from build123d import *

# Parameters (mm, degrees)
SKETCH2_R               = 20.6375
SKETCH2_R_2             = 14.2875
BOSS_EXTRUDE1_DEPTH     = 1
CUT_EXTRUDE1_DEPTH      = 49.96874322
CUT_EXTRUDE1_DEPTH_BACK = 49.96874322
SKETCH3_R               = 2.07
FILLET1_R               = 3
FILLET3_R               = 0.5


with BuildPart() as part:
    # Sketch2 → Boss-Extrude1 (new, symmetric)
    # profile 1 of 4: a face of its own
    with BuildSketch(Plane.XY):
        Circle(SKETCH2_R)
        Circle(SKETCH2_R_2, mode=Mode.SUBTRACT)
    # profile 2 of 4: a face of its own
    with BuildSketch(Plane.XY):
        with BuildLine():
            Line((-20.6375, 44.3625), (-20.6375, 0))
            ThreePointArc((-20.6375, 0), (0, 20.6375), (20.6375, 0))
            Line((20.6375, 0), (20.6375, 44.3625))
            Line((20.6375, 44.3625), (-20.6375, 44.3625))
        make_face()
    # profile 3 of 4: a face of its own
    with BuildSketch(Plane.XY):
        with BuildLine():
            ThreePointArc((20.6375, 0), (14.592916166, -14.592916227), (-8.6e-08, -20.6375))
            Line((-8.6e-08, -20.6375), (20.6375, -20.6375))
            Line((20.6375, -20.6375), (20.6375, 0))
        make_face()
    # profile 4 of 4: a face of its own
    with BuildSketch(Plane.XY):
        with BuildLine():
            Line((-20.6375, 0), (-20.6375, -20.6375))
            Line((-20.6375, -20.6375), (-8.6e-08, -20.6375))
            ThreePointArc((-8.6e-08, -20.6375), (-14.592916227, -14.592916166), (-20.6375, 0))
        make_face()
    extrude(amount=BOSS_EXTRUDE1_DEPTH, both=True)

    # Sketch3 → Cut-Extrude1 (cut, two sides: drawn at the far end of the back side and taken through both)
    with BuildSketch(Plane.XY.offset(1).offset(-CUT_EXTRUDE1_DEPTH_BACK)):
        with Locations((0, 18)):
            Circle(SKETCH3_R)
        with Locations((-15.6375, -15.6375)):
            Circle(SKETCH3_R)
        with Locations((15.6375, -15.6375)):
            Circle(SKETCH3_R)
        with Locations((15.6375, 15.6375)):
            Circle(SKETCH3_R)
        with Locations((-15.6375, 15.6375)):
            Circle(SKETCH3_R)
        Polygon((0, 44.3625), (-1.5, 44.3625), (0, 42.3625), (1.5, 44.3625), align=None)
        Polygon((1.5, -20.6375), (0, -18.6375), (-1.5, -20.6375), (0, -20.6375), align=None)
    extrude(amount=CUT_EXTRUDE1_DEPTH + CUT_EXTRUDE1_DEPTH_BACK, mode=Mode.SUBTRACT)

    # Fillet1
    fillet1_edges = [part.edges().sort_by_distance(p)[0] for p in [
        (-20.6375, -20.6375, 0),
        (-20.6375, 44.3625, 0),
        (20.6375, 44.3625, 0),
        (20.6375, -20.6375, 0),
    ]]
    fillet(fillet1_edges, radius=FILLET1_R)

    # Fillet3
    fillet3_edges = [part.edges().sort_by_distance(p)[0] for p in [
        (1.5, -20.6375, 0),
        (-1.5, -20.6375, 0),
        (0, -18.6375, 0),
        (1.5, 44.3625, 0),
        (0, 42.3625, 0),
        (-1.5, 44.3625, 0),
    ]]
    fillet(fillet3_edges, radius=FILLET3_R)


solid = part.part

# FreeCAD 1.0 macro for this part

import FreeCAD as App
import Part
import Sketcher
from FreeCAD import Vector
Q = App.Units.Quantity


def edges_at(feature, points):
    """Names of the edges that pass closest to the given points."""
    edges = feature.Shape.Edges
    near = lambda p: min(range(len(edges)), key=lambda i: edges[i].distToShape(Part.Vertex(*p))[0])
    return sorted({f"Edge{near(p) + 1}" for p in points})


def add_polygon(sketch, points):
    """Adds a closed chain of lines whose ends are joined by coincident constraints."""
    first, n = sketch.GeometryCount, len(points)
    for a, b in zip(points, points[1:] + points[:1]):
        sketch.addGeometry(Part.LineSegment(App.Vector(*a, 0), App.Vector(*b, 0)), False)
    for i in range(n):
        sketch.addConstraint(Sketcher.Constraint("Coincident", first + i, 2, first + (i + 1) % n, 1))

doc = App.newDocument("Part")
body = doc.addObject("PartDesign::Body", "Body")

sketch1 = body.newObject("Sketcher::SketchObject", "Sketch")
sketch1.AttachmentSupport = (doc.getObject("XY_Plane"), [""])
sketch1.MapMode = "FlatFace"
add_polygon(sketch1, [(-21, 44), (-21, -21), (21, -21), (21, 44)])
sketch1.addGeometry(Part.Circle(Vector(0, 0, 0), Vector(0, 0, 1), 14), False)
sketch1.addConstraint([
    Sketcher.Constraint("Vertical", 0),
    Sketcher.Constraint("Horizontal", 1),
    Sketcher.Constraint("Vertical", 2),
    Sketcher.Constraint("Horizontal", 3),
    Sketcher.Constraint("Coincident", 4, 3, -1, 1),
    Sketcher.Constraint("DistanceY", 0, 2, 0, 1, Q("65 mm")),
    Sketcher.Constraint("Diameter", 4, Q("28.575 mm")),
    Sketcher.Constraint("DistanceX", 1, 1, 1, 2, Q("41.275 mm")),
    Sketcher.Constraint("DistanceX", 0, 2, -1, 1, Q("20.6375 mm")),
    Sketcher.Constraint("DistanceY", 0, 2, -1, 1, Q("20.6375 mm")),
])
pad1 = body.newObject("PartDesign::Pad", "Pad")
pad1.Profile = sketch1
pad1.Length = 2
pad1.Midplane = True

sketch2 = body.newObject("Sketcher::SketchObject", "Sketch001")
sketch2.AttachmentSupport = (doc.getObject("XY_Plane"), [""])
sketch2.MapMode = "FlatFace"
sketch2.AttachmentOffset = App.Placement(Vector(0, 0, 1), App.Rotation())
sketch2.addGeometry(Part.Circle(Vector(0, 18, 0), Vector(0, 0, 1), 2.1), False)
sketch2.addGeometry(Part.Circle(Vector(-15.6, -15.6, 0), Vector(0, 0, 1), 2.1), False)
sketch2.addGeometry(Part.Circle(Vector(15.6, -15.6, 0), Vector(0, 0, 1), 2.1), False)
sketch2.addGeometry(Part.Circle(Vector(15.6, 15.6, 0), Vector(0, 0, 1), 2.1), False)
sketch2.addGeometry(Part.Circle(Vector(-15.6, 15.6, 0), Vector(0, 0, 1), 2.1), False)
add_polygon(sketch2, [(-1.5, 44.4), (0, 42.4), (1.5, 44.4)])
add_polygon(sketch2, [(1.5, -20.6), (0, -18.6), (-1.5, -20.6)])
sketch2.addConstraint([
    Sketcher.Constraint("Horizontal", 7),
    Sketcher.Constraint("Horizontal", 10),
    Sketcher.Constraint("Equal", 0, 1),
    Sketcher.Constraint("Equal", 1, 2),
    Sketcher.Constraint("Equal", 2, 3),
    Sketcher.Constraint("Equal", 3, 4),
    Sketcher.Constraint("Symmetric", 1, 3, 3, 3, -1, 1),
    Sketcher.Constraint("Symmetric", 2, 3, 4, 3, -1, 1),
    Sketcher.Constraint("Symmetric", 1, 3, 2, 3, -2),
    Sketcher.Constraint("PointOnObject", 0, 3, -2),
    Sketcher.Constraint("PointOnObject", 5, 2, -2),
    Sketcher.Constraint("PointOnObject", 8, 2, -2),
    Sketcher.Constraint("Parallel", 5, 8),
    Sketcher.Constraint("Parallel", 6, 9),
    Sketcher.Constraint("Vertical", 7, 2, 9, 2),
    Sketcher.Constraint("Vertical", 6, 2, 10, 2),
    Sketcher.Constraint("Diameter", 0, Q("4.14 mm")),
    Sketcher.Constraint("DistanceX", 7, 2, 7, 1, Q("3 mm")),
    Sketcher.Constraint("DistanceY", -1, 1, 0, 3, Q("18 mm")),
    Sketcher.Constraint("DistanceY", 1, 3, 5, 2, Q("58 mm")),
    Sketcher.Constraint("DistanceY", 5, 2, 6, 2, Q("2 mm")),
    Sketcher.Constraint("DistanceY", 8, 2, 1, 3, Q("3 mm")),
    Sketcher.Constraint("DistanceX", 1, 3, 2, 3, Q("31.275 mm")),
    Sketcher.Constraint("DistanceY", 2, 3, 3, 3, Q("31.275 mm")),
])
pocket1 = body.newObject("PartDesign::Pocket", "Pocket")
pocket1.Profile = sketch2
pocket1.Type = "ThroughAll"
pocket1.Midplane = True
doc.recompute()

fillet = body.newObject("PartDesign::Fillet", "Fillet")
fillet.Base = (pocket1, edges_at(pocket1, [
    (-20.637, -20.637, 0),
    (-20.637, 44.362, 0),
    (20.637, 44.362, 0),
    (20.637, -20.637, 0),
]))
fillet.Radius = 3
doc.recompute()

fillet2 = body.newObject("PartDesign::Fillet", "Fillet001")
fillet2.Base = (fillet, edges_at(fillet, [
    (1.5, -20.637, 0),
    (-1.5, -20.637, 0),
    (0, -18.637, 0),
    (1.5, 44.362, 0),
    (0, 42.362, 0),
    (-1.5, 44.362, 0),
]))
fillet2.Radius = 0.5

doc.recompute()
